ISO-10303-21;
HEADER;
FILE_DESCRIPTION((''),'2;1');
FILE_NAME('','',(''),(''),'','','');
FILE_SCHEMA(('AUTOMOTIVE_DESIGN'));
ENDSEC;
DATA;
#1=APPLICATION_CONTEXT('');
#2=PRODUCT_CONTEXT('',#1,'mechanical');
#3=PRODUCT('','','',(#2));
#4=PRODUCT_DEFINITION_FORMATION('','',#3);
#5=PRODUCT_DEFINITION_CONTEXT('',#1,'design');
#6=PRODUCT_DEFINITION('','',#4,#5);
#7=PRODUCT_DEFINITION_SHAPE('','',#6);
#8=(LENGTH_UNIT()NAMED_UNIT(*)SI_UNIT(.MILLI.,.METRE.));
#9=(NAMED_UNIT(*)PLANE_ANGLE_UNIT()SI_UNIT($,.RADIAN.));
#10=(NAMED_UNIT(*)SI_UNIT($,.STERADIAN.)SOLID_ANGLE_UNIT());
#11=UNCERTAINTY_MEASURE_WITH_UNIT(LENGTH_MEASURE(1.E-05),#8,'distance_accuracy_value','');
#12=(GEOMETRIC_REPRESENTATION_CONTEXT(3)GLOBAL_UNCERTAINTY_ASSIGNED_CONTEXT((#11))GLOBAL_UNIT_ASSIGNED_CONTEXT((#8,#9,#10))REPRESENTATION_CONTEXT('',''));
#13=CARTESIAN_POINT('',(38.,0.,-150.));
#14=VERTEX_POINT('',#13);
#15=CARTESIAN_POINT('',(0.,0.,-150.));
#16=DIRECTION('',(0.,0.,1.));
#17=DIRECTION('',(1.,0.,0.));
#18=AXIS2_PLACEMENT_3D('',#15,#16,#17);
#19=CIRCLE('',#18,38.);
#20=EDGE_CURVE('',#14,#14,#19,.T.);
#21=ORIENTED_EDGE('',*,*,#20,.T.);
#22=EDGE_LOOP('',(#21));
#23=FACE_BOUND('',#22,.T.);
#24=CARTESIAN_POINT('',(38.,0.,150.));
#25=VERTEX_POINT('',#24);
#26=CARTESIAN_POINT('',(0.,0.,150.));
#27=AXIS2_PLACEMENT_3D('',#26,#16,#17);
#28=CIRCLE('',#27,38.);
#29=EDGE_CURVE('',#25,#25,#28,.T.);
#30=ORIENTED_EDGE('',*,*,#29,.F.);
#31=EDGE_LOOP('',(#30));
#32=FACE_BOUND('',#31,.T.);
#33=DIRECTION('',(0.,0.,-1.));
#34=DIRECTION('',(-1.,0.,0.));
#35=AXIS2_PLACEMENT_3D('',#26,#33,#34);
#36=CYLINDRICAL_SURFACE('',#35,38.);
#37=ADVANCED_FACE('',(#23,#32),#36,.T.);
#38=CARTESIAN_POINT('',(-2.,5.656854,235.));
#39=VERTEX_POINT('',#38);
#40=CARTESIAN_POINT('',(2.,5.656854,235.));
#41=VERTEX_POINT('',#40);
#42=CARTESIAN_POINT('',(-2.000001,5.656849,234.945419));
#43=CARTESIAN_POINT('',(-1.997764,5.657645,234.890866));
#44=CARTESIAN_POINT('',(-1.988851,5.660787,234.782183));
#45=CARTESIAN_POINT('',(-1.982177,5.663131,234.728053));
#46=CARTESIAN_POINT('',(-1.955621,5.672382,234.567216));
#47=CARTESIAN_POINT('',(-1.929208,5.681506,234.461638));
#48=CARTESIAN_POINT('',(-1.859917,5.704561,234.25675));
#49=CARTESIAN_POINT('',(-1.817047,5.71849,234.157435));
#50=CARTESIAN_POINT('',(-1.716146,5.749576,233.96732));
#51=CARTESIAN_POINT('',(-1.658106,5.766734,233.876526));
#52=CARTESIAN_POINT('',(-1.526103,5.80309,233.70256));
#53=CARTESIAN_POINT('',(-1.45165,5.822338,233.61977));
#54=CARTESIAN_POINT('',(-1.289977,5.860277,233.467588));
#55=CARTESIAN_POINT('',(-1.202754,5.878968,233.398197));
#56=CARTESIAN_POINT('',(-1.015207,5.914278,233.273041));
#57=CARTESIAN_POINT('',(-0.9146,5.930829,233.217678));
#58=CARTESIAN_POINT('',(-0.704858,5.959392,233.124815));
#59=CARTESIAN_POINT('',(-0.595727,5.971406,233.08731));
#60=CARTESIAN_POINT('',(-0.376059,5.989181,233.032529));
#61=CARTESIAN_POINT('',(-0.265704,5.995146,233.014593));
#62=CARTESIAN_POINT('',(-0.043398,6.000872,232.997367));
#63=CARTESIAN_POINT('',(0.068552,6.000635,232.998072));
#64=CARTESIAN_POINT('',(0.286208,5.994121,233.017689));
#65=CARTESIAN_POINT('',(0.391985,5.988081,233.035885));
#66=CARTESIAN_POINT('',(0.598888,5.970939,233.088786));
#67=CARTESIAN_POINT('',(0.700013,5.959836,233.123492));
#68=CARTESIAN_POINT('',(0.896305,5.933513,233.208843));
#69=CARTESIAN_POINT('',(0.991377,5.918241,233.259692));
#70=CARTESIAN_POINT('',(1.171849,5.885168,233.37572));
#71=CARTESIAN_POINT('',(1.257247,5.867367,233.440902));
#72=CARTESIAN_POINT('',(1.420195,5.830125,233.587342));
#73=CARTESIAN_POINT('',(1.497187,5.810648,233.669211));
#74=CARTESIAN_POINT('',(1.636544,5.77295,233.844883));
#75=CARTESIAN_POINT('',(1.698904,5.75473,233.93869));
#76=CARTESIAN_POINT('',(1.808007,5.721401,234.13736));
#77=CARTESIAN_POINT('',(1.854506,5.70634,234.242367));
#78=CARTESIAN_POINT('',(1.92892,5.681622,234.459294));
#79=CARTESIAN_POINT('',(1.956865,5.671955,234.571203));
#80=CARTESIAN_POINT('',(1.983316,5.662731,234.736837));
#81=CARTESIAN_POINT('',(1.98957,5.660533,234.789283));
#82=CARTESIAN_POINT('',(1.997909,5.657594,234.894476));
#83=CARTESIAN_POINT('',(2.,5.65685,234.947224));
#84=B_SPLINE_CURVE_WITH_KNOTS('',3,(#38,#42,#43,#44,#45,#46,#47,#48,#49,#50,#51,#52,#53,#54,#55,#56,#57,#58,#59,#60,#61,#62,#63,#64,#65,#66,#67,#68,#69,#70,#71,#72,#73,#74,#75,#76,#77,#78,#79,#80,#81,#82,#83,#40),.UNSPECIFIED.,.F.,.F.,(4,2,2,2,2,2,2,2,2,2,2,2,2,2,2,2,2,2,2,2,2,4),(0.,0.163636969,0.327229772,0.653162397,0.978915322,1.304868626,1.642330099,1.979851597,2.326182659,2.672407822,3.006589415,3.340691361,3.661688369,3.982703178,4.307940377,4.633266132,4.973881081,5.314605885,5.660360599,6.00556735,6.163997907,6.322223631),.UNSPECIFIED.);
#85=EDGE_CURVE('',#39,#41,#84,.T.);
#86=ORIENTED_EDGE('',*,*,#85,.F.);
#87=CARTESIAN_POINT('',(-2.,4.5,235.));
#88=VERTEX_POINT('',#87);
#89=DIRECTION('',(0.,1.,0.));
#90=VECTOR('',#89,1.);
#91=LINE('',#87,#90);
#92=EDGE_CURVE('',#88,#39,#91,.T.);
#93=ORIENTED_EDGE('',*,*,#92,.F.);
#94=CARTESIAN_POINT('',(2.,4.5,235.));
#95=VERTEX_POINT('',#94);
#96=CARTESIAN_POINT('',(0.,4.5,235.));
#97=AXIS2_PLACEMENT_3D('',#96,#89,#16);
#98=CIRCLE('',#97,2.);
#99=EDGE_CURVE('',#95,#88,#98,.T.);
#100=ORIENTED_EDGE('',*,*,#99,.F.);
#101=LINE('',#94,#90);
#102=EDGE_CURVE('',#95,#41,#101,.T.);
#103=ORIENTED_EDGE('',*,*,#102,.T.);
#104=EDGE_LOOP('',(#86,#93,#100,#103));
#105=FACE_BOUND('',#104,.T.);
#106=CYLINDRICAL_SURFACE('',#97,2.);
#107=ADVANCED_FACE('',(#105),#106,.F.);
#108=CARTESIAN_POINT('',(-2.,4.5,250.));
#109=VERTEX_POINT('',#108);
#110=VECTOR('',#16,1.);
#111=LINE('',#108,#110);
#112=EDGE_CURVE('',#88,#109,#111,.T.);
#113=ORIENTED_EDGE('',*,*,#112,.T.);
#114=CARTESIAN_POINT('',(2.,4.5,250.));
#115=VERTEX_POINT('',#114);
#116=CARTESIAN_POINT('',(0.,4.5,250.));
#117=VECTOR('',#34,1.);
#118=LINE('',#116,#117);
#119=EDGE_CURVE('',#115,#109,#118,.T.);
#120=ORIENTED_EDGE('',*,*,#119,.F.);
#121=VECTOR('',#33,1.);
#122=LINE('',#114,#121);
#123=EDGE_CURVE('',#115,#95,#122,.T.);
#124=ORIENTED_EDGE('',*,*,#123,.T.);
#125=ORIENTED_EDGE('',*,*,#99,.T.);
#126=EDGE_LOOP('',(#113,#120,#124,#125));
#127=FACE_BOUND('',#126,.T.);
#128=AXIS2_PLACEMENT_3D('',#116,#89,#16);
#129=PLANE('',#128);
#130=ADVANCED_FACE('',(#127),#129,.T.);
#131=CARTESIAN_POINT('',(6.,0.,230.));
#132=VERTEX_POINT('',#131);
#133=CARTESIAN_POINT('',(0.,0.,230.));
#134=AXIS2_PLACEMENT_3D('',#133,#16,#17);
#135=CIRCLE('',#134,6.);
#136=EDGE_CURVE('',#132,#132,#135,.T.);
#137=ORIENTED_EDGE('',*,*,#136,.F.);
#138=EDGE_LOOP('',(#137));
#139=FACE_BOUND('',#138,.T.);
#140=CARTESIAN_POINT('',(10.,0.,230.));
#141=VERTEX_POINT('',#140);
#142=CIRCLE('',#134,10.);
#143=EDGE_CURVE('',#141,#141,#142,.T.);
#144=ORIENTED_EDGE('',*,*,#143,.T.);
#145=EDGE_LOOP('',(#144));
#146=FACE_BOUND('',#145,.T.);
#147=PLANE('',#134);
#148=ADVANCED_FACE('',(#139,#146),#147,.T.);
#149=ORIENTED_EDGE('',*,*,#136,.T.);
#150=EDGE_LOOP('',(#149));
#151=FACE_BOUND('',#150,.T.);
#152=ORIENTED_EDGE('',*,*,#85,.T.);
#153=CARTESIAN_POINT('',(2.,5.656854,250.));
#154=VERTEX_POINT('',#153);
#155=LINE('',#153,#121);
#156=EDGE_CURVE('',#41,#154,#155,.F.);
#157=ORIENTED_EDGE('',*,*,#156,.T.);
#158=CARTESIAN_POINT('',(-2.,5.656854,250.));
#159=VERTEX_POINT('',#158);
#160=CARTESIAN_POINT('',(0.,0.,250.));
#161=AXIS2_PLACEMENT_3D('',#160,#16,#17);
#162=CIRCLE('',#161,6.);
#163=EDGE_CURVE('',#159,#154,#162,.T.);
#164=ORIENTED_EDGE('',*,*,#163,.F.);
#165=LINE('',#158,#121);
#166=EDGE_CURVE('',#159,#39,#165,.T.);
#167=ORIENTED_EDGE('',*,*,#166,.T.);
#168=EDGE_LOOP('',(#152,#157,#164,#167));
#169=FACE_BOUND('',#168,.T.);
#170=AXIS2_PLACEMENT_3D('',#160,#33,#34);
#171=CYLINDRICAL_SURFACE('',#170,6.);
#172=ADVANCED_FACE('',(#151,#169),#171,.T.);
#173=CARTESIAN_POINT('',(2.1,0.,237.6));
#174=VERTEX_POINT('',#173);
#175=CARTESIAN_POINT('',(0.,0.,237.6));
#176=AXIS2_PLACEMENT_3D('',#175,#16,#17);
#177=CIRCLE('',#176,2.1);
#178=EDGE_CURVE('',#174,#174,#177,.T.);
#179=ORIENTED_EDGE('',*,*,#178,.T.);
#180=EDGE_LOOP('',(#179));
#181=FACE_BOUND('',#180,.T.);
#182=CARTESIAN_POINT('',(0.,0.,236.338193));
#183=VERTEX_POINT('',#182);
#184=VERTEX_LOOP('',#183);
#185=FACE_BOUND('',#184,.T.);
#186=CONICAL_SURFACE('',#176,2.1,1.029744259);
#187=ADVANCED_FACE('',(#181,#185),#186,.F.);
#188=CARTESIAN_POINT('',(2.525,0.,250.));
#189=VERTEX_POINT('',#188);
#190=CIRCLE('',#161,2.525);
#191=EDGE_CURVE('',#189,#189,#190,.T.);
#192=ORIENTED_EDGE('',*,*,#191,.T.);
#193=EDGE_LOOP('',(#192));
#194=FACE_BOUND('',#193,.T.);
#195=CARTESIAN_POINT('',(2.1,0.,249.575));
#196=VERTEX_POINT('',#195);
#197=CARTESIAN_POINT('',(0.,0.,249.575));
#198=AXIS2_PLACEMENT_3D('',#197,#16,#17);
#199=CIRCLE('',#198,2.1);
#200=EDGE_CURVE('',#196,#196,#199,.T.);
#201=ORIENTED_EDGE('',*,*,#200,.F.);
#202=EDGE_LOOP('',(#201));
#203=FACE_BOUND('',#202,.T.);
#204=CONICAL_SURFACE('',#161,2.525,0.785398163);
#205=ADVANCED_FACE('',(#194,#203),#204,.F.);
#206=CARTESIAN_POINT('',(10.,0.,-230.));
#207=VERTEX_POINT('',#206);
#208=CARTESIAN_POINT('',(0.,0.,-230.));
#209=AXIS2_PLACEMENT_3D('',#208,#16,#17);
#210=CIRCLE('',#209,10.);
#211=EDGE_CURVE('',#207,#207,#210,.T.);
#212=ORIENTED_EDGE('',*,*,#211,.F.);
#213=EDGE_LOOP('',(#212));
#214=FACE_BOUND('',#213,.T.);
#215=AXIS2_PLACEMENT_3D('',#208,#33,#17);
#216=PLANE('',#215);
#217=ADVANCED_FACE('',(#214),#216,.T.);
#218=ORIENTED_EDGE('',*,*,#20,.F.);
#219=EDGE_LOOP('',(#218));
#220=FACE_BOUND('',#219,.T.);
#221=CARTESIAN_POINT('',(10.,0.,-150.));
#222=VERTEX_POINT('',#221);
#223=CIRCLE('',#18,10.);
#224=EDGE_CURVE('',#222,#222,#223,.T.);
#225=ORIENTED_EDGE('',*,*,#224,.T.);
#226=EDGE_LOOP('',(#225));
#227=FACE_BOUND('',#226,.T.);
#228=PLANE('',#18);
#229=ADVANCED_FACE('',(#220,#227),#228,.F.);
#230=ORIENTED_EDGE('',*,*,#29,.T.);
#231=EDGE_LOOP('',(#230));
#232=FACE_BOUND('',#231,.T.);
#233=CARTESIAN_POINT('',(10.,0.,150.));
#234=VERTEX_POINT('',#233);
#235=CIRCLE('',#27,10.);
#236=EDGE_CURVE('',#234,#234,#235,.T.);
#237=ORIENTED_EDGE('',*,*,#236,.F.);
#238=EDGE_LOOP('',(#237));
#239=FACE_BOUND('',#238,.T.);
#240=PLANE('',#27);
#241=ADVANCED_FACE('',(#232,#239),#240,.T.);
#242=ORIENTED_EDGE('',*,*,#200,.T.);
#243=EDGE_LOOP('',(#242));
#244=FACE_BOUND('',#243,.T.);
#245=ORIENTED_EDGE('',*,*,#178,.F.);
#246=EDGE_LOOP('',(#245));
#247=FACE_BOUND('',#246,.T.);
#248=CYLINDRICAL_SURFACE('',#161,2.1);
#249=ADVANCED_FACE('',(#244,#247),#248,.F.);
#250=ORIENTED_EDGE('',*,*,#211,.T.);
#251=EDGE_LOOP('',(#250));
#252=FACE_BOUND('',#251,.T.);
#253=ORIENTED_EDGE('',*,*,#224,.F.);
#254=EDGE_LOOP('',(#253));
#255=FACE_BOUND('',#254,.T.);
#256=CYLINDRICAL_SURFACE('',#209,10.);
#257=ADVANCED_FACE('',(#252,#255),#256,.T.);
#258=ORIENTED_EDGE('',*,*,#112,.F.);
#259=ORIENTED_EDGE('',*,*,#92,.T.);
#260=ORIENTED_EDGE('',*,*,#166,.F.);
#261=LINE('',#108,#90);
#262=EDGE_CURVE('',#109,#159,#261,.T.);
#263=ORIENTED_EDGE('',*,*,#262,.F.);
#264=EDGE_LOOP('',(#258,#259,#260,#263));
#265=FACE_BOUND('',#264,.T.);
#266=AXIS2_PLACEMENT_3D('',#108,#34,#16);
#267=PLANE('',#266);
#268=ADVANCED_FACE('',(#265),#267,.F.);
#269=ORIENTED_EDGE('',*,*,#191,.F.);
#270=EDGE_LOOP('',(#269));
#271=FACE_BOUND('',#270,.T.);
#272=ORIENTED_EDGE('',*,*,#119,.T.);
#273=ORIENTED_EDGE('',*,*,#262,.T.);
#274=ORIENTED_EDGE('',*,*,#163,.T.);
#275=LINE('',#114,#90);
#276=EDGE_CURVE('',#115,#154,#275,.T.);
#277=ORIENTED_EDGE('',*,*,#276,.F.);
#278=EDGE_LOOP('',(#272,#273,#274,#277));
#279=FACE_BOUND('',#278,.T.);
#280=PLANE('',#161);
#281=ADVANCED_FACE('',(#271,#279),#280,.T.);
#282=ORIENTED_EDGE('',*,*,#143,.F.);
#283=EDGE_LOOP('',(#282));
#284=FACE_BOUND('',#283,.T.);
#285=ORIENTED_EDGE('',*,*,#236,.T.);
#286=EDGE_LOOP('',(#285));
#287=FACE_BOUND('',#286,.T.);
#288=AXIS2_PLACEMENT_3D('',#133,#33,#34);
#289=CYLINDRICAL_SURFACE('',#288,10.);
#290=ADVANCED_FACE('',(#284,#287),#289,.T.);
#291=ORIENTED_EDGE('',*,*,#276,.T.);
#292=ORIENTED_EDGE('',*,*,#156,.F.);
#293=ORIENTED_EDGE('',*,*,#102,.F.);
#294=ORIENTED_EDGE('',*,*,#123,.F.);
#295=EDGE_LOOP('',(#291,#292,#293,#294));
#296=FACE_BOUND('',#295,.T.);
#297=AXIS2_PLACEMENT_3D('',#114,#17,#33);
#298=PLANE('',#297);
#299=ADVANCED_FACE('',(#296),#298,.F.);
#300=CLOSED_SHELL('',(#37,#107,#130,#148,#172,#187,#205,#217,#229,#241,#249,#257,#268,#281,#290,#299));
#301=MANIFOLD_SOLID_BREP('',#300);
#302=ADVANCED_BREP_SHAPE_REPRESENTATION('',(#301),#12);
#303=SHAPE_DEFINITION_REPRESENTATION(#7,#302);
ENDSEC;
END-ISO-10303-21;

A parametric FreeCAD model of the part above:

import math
import FreeCAD as App
import Part
import Sketcher
from FreeCAD import Vector
Q = App.Units.Quantity

doc = App.newDocument("Part")
body = doc.addObject("PartDesign::Body", "Body")

# Sketch on XY plane
sketch1 = body.newObject("Sketcher::SketchObject", "Sketch")
sketch1.AttachmentSupport = (doc.getObject("XY_Plane"), [""])
sketch1.MapMode = "FlatFace"
sketch1.addGeometry(Part.Circle(Vector(0, 0, 0), Vector(0, 0, 1), 38), False)
sketch1.addConstraint([
    Sketcher.Constraint("Coincident", 0, 3, -1, 1),
    Sketcher.Constraint("Diameter", 0, Q("76 mm")),
])
pad1 = body.newObject("PartDesign::Pad", "Pad")
pad1.Profile = sketch1
pad1.Length = 300
pad1.Midplane = True

# Sketch on XY plane
sketch2 = body.newObject("Sketcher::SketchObject", "Sketch001")
sketch2.AttachmentSupport = (doc.getObject("XY_Plane"), [""])
sketch2.MapMode = "FlatFace"
sketch2.AttachmentOffset = App.Placement(Vector(0, 0, 150), App.Rotation())
sketch2.addGeometry(Part.Circle(Vector(0, 0, 0), Vector(0, 0, 1), 10), False)
sketch2.addConstraint([
    Sketcher.Constraint("Coincident", 0, 3, -1, 1),
    Sketcher.Constraint("Diameter", 0, Q("20 mm")),
])
pad2 = body.newObject("PartDesign::Pad", "Pad001")
pad2.Profile = sketch2
pad2.Length = 80
doc.recompute()

mirrored = body.newObject("PartDesign::Mirrored", "Mirrored")
mirrored.Originals = [pad2]
mirrored.MirrorPlane = (doc.getObject("XY_Plane"), [""])
body.Tip = mirrored

# Sketch on XY plane
sketch3 = body.newObject("Sketcher::SketchObject", "Sketch002")
sketch3.AttachmentSupport = (doc.getObject("XY_Plane"), [""])
sketch3.MapMode = "FlatFace"
sketch3.AttachmentOffset = App.Placement(Vector(0, 0, 230), App.Rotation())
sketch3.addGeometry(Part.Circle(Vector(0, 0, 0), Vector(0, 0, 1), 6), False)
sketch3.addConstraint([
    Sketcher.Constraint("Coincident", 0, 3, -1, 1),
    Sketcher.Constraint("Diameter", 0, Q("12 mm")),
])
pad3 = body.newObject("PartDesign::Pad", "Pad002")
pad3.Profile = sketch3
pad3.Length = 20

# Sketch on XZ plane
sketch4 = body.newObject("Sketcher::SketchObject", "Sketch003")
sketch4.AttachmentSupport = (doc.getObject("XZ_Plane"), [""])
sketch4.MapMode = "FlatFace"
sketch4.AttachmentOffset = App.Placement(Vector(0, 0, -7.5), App.Rotation())
sketch4.addGeometry([
    Part.LineSegment(Vector(-2, 235, 0), Vector(-2, 250, 0)),
    Part.ArcOfCircle(Part.Circle(Vector(0, 250, 0), Vector(0, 0, 1), 2), math.radians(0), math.radians(180)),
    Part.LineSegment(Vector(2, 250, 0), Vector(2, 235, 0)),
    Part.ArcOfCircle(Part.Circle(Vector(0, 235, 0), Vector(0, 0, 1), 2), math.radians(180), math.radians(360)),
], False)
sketch4.addConstraint([
    Sketcher.Constraint("Tangent", 0, 2, 1, 2),
    Sketcher.Constraint("Tangent", 1, 1, 2, 1),
    Sketcher.Constraint("Tangent", 2, 2, 3, 2),
    Sketcher.Constraint("Tangent", 3, 1, 0, 1),
    Sketcher.Constraint("Vertical", 0),
    Sketcher.Constraint("Vertical", 2),
    Sketcher.Constraint("PointOnObject", 1, 3, -2),
    Sketcher.Constraint("Radius", 1, Q("2 mm")),
    Sketcher.Constraint("DistanceY", 0, 1, 0, 2, Q("15 mm")),
    Sketcher.Constraint("DistanceY", -1, 1, 1, 3, Q("250 mm")),
])
pocket1 = body.newObject("PartDesign::Pocket", "Pocket")
pocket1.Profile = sketch4
pocket1.Length = 3
pocket1.Reversed = True

# Sketch on XY plane
sketch5 = body.newObject("Sketcher::SketchObject", "Sketch004")
sketch5.AttachmentSupport = (doc.getObject("XY_Plane"), [""])
sketch5.MapMode = "FlatFace"
sketch5.AttachmentOffset = App.Placement(Vector(0, 0, 250), App.Rotation())
sketch5.addGeometry(Part.Circle(Vector(0, 0, 0), Vector(0, 0, 1), 2.1), False)
sketch5.addConstraint([
    Sketcher.Constraint("Coincident", 0, 3, -1, 1),
    Sketcher.Constraint("Diameter", 0, Q("4.2 mm")),
])
doc.recompute()
hole = body.newObject("PartDesign::Hole", "Hole")
hole.Profile = sketch5
hole.ThreadType = "None"
hole.Diameter = 4.2
hole.DepthType = "Dimension"
hole.Depth = 12.4
hole.DrillPoint = "Angled"
hole.DrillPointAngle = 118
hole.HoleCutType = "Countersink"
hole.HoleCutDiameter = 5.05
hole.HoleCutCountersinkAngle = 90

doc.recompute()
